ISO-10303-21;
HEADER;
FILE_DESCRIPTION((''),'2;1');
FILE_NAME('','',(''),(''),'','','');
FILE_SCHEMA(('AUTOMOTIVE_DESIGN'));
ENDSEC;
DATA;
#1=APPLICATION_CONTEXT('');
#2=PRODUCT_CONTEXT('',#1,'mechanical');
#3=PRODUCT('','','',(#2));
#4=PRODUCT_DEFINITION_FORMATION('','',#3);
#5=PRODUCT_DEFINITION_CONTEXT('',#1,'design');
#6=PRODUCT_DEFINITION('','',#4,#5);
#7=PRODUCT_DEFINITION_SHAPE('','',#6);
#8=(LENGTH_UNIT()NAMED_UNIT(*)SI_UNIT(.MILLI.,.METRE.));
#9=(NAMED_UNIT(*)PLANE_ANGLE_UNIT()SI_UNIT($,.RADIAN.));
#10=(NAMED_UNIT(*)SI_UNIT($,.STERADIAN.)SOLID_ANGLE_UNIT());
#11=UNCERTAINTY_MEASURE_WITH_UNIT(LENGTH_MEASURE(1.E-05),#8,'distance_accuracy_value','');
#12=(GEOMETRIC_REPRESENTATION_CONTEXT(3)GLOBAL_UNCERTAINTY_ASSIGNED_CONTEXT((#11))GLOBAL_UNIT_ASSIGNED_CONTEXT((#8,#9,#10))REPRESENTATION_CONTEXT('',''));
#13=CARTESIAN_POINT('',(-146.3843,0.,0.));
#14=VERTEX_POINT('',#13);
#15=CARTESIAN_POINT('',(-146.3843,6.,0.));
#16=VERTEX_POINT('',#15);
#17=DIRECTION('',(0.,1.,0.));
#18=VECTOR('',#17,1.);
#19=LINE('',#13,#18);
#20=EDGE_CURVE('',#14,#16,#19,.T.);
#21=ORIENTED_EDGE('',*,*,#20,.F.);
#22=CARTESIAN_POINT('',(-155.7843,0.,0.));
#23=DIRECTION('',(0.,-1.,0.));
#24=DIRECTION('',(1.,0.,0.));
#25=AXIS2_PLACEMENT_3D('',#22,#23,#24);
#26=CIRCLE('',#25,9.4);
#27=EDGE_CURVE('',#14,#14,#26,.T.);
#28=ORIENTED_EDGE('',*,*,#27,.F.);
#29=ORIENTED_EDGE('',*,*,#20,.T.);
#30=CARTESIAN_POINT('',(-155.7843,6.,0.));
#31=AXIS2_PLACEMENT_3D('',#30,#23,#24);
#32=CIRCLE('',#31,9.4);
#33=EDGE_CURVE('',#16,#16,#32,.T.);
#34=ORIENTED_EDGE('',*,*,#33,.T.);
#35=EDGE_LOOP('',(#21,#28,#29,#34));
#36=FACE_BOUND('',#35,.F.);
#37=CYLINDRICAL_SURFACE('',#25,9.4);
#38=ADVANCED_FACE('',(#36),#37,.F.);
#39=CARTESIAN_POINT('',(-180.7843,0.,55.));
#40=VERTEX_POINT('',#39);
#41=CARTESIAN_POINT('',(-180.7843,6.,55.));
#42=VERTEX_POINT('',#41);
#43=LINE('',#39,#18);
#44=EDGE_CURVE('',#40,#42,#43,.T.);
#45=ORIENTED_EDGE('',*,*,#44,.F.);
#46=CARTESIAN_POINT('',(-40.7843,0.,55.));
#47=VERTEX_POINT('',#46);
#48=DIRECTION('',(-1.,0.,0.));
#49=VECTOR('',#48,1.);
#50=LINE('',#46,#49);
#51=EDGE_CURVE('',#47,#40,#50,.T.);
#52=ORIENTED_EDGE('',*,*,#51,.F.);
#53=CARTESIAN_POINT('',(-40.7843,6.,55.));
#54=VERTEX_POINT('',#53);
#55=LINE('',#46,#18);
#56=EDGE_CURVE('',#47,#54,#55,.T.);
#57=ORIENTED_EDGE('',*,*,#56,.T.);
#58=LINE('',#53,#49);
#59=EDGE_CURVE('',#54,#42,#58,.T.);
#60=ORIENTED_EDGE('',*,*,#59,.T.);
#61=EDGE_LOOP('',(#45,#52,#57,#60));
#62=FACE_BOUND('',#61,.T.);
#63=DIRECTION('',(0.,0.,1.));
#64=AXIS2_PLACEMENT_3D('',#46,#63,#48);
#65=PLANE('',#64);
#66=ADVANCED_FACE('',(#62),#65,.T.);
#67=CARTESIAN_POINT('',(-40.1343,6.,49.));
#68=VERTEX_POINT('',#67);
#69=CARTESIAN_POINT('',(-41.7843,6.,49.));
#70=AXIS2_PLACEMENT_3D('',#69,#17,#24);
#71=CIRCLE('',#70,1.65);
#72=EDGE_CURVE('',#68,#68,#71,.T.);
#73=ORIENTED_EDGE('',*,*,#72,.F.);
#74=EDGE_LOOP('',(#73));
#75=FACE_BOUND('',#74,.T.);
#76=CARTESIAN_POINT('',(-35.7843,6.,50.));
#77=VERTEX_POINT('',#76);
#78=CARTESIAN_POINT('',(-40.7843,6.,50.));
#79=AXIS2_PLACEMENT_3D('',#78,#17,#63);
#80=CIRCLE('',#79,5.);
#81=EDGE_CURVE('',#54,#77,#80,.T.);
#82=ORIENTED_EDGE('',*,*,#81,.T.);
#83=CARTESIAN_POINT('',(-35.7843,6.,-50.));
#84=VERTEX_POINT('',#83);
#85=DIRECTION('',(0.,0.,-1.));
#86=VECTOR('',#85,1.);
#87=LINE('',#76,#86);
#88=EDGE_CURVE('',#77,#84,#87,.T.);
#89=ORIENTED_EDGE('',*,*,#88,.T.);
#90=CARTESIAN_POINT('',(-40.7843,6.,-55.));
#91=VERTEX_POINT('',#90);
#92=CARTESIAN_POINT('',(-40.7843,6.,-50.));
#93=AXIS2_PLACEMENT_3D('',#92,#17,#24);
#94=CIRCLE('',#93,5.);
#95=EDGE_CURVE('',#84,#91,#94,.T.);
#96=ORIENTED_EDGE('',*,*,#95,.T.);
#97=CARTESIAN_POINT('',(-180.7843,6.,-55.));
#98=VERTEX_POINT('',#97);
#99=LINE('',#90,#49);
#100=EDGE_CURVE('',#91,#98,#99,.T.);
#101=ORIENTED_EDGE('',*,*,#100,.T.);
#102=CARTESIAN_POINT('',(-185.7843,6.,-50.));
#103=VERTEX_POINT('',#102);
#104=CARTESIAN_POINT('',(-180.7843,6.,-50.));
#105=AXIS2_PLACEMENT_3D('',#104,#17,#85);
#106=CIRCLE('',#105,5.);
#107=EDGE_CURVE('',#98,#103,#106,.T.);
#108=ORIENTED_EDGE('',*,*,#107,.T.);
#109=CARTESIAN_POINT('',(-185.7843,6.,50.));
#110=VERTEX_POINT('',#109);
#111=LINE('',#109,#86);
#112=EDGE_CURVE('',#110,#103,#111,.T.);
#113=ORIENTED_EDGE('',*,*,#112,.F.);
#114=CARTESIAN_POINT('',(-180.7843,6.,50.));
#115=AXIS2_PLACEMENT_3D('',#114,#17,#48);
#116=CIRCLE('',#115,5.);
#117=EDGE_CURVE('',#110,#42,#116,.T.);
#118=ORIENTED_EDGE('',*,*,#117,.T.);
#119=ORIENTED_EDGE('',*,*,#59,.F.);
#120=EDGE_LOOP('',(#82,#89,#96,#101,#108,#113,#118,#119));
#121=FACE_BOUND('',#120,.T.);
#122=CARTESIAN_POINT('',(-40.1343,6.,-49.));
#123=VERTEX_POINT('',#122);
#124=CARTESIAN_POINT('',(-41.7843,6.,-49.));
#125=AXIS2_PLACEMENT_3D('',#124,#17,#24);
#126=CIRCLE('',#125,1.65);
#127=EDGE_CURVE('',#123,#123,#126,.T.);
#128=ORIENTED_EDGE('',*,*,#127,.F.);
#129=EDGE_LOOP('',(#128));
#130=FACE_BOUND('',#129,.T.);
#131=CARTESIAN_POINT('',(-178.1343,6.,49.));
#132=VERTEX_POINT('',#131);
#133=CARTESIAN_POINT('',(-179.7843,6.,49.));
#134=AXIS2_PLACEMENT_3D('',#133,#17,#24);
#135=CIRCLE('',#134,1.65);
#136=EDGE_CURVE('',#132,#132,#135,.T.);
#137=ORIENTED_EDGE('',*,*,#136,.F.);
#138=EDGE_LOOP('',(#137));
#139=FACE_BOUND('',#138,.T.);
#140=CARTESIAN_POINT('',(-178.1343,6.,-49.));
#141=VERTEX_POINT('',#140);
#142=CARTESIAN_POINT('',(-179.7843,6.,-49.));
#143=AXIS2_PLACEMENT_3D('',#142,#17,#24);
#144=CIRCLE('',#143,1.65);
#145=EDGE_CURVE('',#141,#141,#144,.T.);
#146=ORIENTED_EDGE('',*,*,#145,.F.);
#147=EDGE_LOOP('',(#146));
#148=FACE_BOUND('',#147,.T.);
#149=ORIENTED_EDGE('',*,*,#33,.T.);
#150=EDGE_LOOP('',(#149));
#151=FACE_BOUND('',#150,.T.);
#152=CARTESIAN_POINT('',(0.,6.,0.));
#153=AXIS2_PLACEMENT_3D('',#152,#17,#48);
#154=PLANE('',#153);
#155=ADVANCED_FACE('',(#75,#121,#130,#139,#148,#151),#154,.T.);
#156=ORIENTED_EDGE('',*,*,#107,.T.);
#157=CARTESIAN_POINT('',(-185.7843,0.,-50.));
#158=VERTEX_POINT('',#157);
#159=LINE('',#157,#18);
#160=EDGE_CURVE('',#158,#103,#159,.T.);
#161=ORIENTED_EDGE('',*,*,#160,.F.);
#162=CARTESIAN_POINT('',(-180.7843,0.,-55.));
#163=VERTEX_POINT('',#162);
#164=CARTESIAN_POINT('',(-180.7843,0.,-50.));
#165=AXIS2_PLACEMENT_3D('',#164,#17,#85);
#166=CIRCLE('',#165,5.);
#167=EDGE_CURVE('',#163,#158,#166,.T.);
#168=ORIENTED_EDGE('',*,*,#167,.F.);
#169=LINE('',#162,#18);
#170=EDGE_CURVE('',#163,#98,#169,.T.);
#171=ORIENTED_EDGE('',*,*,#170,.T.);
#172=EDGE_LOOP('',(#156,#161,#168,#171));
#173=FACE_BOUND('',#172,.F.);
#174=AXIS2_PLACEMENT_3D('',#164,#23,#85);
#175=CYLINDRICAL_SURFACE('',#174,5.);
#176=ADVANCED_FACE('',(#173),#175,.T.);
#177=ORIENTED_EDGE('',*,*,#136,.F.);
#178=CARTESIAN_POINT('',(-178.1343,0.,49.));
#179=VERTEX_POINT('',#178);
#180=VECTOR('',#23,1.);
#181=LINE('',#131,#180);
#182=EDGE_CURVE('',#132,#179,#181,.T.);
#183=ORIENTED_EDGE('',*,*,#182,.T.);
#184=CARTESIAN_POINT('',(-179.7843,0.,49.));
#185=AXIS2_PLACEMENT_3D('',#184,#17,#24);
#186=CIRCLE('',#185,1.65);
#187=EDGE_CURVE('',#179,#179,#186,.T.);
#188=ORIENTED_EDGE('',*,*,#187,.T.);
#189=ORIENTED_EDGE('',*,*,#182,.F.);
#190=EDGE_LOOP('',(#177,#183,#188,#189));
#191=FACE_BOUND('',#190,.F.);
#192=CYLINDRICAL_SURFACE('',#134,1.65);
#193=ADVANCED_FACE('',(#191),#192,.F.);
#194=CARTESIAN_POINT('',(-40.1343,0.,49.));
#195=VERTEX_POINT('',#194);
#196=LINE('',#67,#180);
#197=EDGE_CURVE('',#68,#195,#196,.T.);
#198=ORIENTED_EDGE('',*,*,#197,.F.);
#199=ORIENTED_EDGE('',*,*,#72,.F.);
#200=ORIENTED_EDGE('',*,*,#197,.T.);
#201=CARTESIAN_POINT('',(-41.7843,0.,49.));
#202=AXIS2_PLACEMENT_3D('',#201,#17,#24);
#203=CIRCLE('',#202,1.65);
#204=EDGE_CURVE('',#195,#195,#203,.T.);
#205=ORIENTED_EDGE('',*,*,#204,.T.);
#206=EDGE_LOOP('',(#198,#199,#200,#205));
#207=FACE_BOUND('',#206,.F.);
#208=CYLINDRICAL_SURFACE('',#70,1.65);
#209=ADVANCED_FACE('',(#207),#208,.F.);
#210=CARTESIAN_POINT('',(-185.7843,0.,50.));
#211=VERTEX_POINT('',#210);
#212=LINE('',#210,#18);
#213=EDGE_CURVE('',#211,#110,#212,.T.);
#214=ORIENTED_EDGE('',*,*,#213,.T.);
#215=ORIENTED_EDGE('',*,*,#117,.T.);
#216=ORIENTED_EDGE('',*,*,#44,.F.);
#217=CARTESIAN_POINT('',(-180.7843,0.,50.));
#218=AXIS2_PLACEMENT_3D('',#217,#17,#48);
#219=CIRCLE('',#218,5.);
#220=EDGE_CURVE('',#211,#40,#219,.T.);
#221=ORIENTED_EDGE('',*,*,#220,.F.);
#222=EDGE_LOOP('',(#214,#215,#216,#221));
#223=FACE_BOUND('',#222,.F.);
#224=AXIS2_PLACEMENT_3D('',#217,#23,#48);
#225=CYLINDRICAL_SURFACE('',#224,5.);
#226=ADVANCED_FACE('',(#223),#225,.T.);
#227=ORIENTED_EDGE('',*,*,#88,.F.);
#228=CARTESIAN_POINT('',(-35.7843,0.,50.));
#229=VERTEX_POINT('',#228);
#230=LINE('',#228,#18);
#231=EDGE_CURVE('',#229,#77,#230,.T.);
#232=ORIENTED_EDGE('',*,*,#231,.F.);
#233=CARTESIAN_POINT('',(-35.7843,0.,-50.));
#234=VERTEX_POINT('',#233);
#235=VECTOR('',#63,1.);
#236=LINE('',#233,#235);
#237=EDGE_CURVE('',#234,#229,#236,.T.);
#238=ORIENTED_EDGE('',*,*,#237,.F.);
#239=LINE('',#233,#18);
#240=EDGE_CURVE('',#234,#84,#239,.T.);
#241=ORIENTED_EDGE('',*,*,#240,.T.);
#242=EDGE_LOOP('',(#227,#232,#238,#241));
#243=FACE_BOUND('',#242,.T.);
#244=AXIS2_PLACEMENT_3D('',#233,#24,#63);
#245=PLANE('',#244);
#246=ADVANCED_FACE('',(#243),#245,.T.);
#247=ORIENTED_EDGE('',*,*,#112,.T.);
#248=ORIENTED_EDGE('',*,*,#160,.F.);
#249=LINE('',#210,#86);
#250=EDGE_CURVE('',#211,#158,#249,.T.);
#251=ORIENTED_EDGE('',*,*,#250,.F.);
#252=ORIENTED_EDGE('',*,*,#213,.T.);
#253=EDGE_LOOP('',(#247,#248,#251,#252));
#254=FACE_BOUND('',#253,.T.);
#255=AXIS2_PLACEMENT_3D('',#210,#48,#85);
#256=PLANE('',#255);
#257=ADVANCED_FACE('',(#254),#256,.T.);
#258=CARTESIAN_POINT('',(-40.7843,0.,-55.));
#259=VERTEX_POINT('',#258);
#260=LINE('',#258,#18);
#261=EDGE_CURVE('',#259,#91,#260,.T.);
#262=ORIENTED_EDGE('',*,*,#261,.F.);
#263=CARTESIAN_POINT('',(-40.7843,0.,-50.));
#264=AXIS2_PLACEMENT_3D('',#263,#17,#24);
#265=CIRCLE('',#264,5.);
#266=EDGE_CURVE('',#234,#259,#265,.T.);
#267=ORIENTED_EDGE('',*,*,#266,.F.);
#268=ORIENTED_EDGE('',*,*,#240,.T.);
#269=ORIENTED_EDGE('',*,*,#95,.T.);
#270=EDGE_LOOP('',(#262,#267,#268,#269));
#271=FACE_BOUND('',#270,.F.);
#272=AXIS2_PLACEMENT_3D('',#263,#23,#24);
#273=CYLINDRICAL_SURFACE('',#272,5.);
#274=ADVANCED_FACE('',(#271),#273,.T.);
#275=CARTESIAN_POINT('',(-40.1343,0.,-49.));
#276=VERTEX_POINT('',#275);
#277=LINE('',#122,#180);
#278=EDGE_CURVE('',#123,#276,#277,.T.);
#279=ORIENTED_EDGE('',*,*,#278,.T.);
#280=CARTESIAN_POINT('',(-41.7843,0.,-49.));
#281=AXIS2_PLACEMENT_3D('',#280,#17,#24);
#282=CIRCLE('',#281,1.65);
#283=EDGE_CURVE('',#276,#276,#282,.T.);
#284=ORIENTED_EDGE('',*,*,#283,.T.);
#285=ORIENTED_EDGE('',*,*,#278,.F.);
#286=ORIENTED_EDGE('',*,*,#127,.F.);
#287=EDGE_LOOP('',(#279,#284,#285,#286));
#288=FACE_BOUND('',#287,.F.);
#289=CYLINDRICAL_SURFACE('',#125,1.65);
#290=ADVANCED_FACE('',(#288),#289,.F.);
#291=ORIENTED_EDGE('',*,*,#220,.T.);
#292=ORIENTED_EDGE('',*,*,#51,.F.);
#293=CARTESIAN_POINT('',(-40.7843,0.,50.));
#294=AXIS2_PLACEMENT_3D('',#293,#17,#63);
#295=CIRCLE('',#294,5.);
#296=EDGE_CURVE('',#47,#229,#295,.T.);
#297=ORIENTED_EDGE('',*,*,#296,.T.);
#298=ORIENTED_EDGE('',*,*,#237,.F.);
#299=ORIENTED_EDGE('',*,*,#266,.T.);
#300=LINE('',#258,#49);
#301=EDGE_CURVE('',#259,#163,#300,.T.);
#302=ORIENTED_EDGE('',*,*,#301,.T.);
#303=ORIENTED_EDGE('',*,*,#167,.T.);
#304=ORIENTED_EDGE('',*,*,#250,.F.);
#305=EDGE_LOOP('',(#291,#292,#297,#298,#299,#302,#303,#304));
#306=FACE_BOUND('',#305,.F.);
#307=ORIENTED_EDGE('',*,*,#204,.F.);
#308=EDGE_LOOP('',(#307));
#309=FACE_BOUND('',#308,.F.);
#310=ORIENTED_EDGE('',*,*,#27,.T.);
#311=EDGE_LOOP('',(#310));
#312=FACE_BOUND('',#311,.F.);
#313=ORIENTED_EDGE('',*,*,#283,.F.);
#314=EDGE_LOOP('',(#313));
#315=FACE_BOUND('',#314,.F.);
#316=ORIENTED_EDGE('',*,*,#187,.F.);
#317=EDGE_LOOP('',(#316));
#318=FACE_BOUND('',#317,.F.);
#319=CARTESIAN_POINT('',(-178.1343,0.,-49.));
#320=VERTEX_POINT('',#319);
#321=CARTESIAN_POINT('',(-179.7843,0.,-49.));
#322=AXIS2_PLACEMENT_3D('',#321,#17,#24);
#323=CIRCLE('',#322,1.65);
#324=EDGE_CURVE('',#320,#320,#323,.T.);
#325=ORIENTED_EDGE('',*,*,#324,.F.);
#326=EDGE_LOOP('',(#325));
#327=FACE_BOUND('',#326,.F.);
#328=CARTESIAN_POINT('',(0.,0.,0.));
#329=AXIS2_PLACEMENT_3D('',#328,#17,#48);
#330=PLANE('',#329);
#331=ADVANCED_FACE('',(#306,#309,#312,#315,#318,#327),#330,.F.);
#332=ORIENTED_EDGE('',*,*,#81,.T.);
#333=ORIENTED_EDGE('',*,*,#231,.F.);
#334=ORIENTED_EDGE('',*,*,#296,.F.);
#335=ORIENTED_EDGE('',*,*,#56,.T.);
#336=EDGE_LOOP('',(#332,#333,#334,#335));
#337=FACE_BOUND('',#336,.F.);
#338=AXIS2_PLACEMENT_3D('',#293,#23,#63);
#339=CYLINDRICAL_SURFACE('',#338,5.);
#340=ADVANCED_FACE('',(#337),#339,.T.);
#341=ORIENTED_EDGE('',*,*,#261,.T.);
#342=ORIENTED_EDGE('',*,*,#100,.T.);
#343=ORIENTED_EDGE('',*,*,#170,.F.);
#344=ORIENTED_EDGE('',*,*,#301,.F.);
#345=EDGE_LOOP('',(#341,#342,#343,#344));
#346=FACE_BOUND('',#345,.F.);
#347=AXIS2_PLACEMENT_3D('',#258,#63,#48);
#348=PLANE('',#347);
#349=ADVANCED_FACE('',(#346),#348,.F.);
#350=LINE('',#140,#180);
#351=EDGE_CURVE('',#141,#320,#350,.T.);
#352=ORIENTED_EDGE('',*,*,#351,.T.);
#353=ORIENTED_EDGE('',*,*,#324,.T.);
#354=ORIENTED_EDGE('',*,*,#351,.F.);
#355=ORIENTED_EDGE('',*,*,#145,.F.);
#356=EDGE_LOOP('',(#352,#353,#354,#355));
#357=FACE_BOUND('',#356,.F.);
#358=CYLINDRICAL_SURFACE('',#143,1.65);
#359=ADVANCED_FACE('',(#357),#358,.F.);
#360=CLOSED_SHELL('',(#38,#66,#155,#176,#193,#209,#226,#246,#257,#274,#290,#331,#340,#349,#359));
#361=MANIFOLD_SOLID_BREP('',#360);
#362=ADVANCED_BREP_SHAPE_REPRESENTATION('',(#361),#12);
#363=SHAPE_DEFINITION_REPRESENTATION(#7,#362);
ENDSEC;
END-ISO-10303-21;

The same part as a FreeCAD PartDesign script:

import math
import FreeCAD as App
import Part
import Sketcher

doc = App.newDocument("Part")
params = doc.addObject("Spreadsheet::Sheet", "Params")
for row, (alias, value) in enumerate([
    ("sketch1_radius", "5 mm"),
    ("sketch1_diameter", "5.3 mm"),
    ("sketch1_width", "140 mm"),
    ("sketch1_height", "100 mm"),
    ("pad1_length", "6 mm"),
    ("sketch2_diameter", "3.3 mm"),
    ("sketch2_diameter2", "5.3 mm"),
    ("pad2_length", "6 mm"),
    ("sketch3_diameter", "18.8 mm"),
    ("pocket1_length", "6 mm"),
], start=1):
    params.set(f"A{row}", alias)
    params.set(f"B{row}", "=" + value)
    params.setAlias(f"B{row}", alias)

body = doc.addObject("PartDesign::Body", "Body")

sketch1 = body.newObject("Sketcher::SketchObject", "Sketch")
sketch1.AttachmentSupport = (doc.getObject("XZ_Plane"), [""])
sketch1.MapMode = "FlatFace"
sketch1.addGeometry([
    Part.LineSegment(App.Vector(-185.8, -50, 0), App.Vector(-185.8, 50, 0)),
    Part.ArcOfCircle(Part.Circle(App.Vector(-180.8, 50, 0), App.Vector(0, 0, 1), 5), math.radians(90), math.radians(180)),
    Part.LineSegment(App.Vector(-180.8, 55, 0), App.Vector(-40.8, 55, 0)),
    Part.ArcOfCircle(Part.Circle(App.Vector(-40.8, 50, 0), App.Vector(0, 0, 1), 5), math.radians(0), math.radians(90)),
    Part.LineSegment(App.Vector(-35.8, 50, 0), App.Vector(-35.8, -50, 0)),
    Part.ArcOfCircle(Part.Circle(App.Vector(-40.8, -50, 0), App.Vector(0, 0, 1), 5), math.radians(-90), math.radians(0)),
    Part.LineSegment(App.Vector(-40.8, -55, 0), App.Vector(-180.8, -55, 0)),
    Part.ArcOfCircle(Part.Circle(App.Vector(-180.8, -50, 0), App.Vector(0, 0, 1), 5), math.radians(180), math.radians(270)),
    Part.Circle(App.Vector(-41.8, -49, 0), App.Vector(0, 0, 1), 2.6),
    Part.Circle(App.Vector(-179.8, -49, 0), App.Vector(0, 0, 1), 2.6),
    Part.Circle(App.Vector(-41.8, 49, 0), App.Vector(0, 0, 1), 2.6),
    Part.Circle(App.Vector(-179.8, 49, 0), App.Vector(0, 0, 1), 2.6),
], False)
sketch1.addConstraint([
    Sketcher.Constraint("Tangent", 0, 2, 1, 2),
    Sketcher.Constraint("Tangent", 1, 1, 2, 1),
    Sketcher.Constraint("Tangent", 2, 2, 3, 2),
    Sketcher.Constraint("Tangent", 3, 1, 4, 1),
    Sketcher.Constraint("Tangent", 4, 2, 5, 2),
    Sketcher.Constraint("Tangent", 5, 1, 6, 1),
    Sketcher.Constraint("Tangent", 6, 2, 7, 2),
    Sketcher.Constraint("Tangent", 7, 1, 0, 1),
    Sketcher.Constraint("Vertical", 0),
    Sketcher.Constraint("Horizontal", 2),
    Sketcher.Constraint("Vertical", 4),
    Sketcher.Constraint("Horizontal", 6),
    Sketcher.Constraint("Equal", 1, 3),
    Sketcher.Constraint("Equal", 3, 5),
    Sketcher.Constraint("Equal", 5, 7),
    Sketcher.Constraint("Equal", 8, 9),
    Sketcher.Constraint("Equal", 9, 10),
    Sketcher.Constraint("Equal", 10, 11),
    Sketcher.Constraint("Symmetric", 8, 3, 10, 3, -1),
    Sketcher.Constraint("Symmetric", 9, 3, 11, 3, -1),
    Sketcher.Constraint("Horizontal", 8, 3, 9, 3),
    Sketcher.Constraint("Radius", 1, 5.0),
    Sketcher.Constraint("Diameter", 8, 5.3),
    Sketcher.Constraint("DistanceX", 2, 1, 2, 2, 140.0),
    Sketcher.Constraint("DistanceY", 0, 1, 0, 2, 100.0),
    Sketcher.Constraint("DistanceY", -1, 1, 1, 3, 50.0),
    Sketcher.Constraint("DistanceY", 8, 3, -1, 1, 49.0),
    Sketcher.Constraint("DistanceX", 8, 3, 5, 3, 1.0),
    Sketcher.Constraint("DistanceX", 7, 3, 9, 3, 1.0),
    Sketcher.Constraint("DistanceX", 1, 3, -1, 1, 180.7843),
])
sketch1.setExpression("Constraints[21]", "Params.sketch1_radius")
sketch1.setExpression("Constraints[22]", "Params.sketch1_diameter")
sketch1.setExpression("Constraints[23]", "Params.sketch1_width")
sketch1.setExpression("Constraints[24]", "Params.sketch1_height")
pad1 = body.newObject("PartDesign::Pad", "Pad")
pad1.Profile = sketch1
pad1.setExpression("Length", "Params.pad1_length")
pad1.Reversed = True

sketch2 = body.newObject("Sketcher::SketchObject", "Sketch001")
sketch2.AttachmentSupport = (doc.getObject("XZ_Plane"), [""])
sketch2.MapMode = "FlatFace"
sketch2.AttachmentOffset = App.Placement(App.Vector(0, 0, -6), App.Rotation())
sketch2.addGeometry([
    Part.Circle(App.Vector(-179.8, -49, 0), App.Vector(0, 0, 1), 2.6),
    Part.Circle(App.Vector(-179.8, -49, 0), App.Vector(0, 0, 1), 1.6),
    Part.Circle(App.Vector(-41.8, -49, 0), App.Vector(0, 0, 1), 2.6),
    Part.Circle(App.Vector(-41.8, -49, 0), App.Vector(0, 0, 1), 1.6),
    Part.Circle(App.Vector(-41.8, 49, 0), App.Vector(0, 0, 1), 2.6),
    Part.Circle(App.Vector(-41.8, 49, 0), App.Vector(0, 0, 1), 1.6),
    Part.Circle(App.Vector(-179.8, 49, 0), App.Vector(0, 0, 1), 2.6),
    Part.Circle(App.Vector(-179.8, 49, 0), App.Vector(0, 0, 1), 1.6),
], False)
sketch2.addConstraint([
    Sketcher.Constraint("Coincident", 1, 3, 0, 3),
    Sketcher.Constraint("Coincident", 3, 3, 2, 3),
    Sketcher.Constraint("Coincident", 5, 3, 4, 3),
    Sketcher.Constraint("Coincident", 7, 3, 6, 3),
    Sketcher.Constraint("Equal", 0, 2),
    Sketcher.Constraint("Equal", 1, 3),
    Sketcher.Constraint("Equal", 2, 4),
    Sketcher.Constraint("Equal", 3, 5),
    Sketcher.Constraint("Equal", 4, 6),
    Sketcher.Constraint("Equal", 5, 7),
    Sketcher.Constraint("Symmetric", 2, 3, 4, 3, -1),
    Sketcher.Constraint("Symmetric", 0, 3, 6, 3, -1),
    Sketcher.Constraint("Horizontal", 1, 3, 2, 3),
    Sketcher.Constraint("Diameter", 1, 3.3),
    Sketcher.Constraint("Diameter", 0, 5.3),
    Sketcher.Constraint("DistanceY", 0, 3, -1, 1, 49.0),
    Sketcher.Constraint("DistanceX", 0, 3, 2, 3, 138.0),
    Sketcher.Constraint("DistanceX", 0, 3, -1, 1, 179.7843),
])
sketch2.setExpression("Constraints[13]", "Params.sketch2_diameter")
sketch2.setExpression("Constraints[14]", "Params.sketch2_diameter2")
pad2 = body.newObject("PartDesign::Pad", "Pad001")
pad2.Profile = sketch2
pad2.setExpression("Length", "Params.pad2_length")

sketch3 = body.newObject("Sketcher::SketchObject", "Sketch002")
sketch3.AttachmentSupport = (doc.getObject("XZ_Plane"), [""])
sketch3.MapMode = "FlatFace"
sketch3.addGeometry(Part.Circle(App.Vector(-156, 0, 0), App.Vector(0, 0, 1), 9), False)
sketch3.addConstraint([
    Sketcher.Constraint("PointOnObject", 0, 3, -1),
    Sketcher.Constraint("Diameter", 0, 18.8),
    Sketcher.Constraint("DistanceX", 0, 3, -1, 1, 155.7843),
])
sketch3.setExpression("Constraints[1]", "Params.sketch3_diameter")
pocket1 = body.newObject("PartDesign::Pocket", "Pocket")
pocket1.Profile = sketch3
pocket1.setExpression("Length", "Params.pocket1_length")

doc.recompute()
